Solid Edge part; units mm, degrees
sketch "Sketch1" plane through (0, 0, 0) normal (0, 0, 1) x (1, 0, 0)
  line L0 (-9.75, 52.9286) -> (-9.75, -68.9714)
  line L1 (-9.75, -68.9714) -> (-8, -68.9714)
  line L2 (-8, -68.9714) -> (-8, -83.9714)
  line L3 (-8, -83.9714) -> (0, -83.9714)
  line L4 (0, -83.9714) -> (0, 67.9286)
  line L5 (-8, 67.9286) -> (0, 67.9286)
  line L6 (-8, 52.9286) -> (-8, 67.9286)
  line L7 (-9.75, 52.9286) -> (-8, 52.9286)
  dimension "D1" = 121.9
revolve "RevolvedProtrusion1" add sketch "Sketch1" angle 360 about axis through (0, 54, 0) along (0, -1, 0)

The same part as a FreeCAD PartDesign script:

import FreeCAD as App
import Part
import Sketcher

V = App.Vector


def add_polygon(sketch, points):
    """Adds a closed chain of lines whose ends are joined by coincident constraints."""
    first, n = sketch.GeometryCount, len(points)
    for a, b in zip(points, points[1:] + points[:1]):
        sketch.addGeometry(Part.LineSegment(App.Vector(*a, 0), App.Vector(*b, 0)), False)
    for i in range(n):
        sketch.addConstraint(Sketcher.Constraint("Coincident", first + i, 2, first + (i + 1) % n, 1))

doc = App.newDocument("Part")
params = doc.addObject("Spreadsheet::Sheet", "Params")
for row, (alias, value) in enumerate([
    ("sketch1_width", "8 mm"),
    ("sketch1_height", "15 mm"),
    ("sketch1_height2", "121.9 mm"),
    ("revolution_angle", "360 deg"),
], start=1):
    params.set(f"A{row}", alias)
    params.set(f"B{row}", "=" + value)
    params.setAlias(f"B{row}", alias)

body = doc.addObject("PartDesign::Body", "Body")

# Sketch on XY plane
sketch1 = doc.addObject("Sketcher::SketchObject", "Sketch")
body.addObject(sketch1)
sketch1.AttachmentSupport = (doc.XY_Plane, [""])
sketch1.MapMode = "FlatFace"
add_polygon(sketch1, [(-8, 52.9), (-9.8, 52.9), (-9.8, -69), (-8, -69), (-8, -84), (0, -84), (0, 67.9), (-8, 67.9)])  # lines 0-7
sketch1.addConstraint([
    Sketcher.Constraint("Horizontal", 0),
    Sketcher.Constraint("Vertical", 1),
    Sketcher.Constraint("Horizontal", 2),
    Sketcher.Constraint("Vertical", 3),
    Sketcher.Constraint("Horizontal", 4),
    Sketcher.Constraint("Vertical", 5),
    Sketcher.Constraint("Horizontal", 6),
    Sketcher.Constraint("Vertical", 7),
    Sketcher.Constraint("PointOnObject", 4, 2, -2),
    Sketcher.Constraint("Vertical", 3, 2, 6, 2),
    Sketcher.Constraint("Equal", 3, 7),
    Sketcher.Constraint("DistanceX", 4, 1, 4, 2, 8.0),
    Sketcher.Constraint("DistanceY", 3, 2, 3, 1, 15.0),
    Sketcher.Constraint("DistanceX", 0, 2, -1, 1, 9.75),
    Sketcher.Constraint("DistanceY", 1, 2, 1, 1, 121.9),
    Sketcher.Constraint("DistanceY", -1, 1, 0, 2, 52.9286),
])
sketch1.setExpression("Constraints[19]", "Params.sketch1_width")
sketch1.setExpression("Constraints[20]", "Params.sketch1_height")
sketch1.setExpression("Constraints[22]", "Params.sketch1_height2")
revolution = doc.addObject("PartDesign::Revolution", "Revolution")
body.addObject(revolution)
revolution.Profile = sketch1
revolution.ReferenceAxis = (sketch1, ["V_Axis"])
revolution.setExpression("Angle", "Params.revolution_angle")

doc.recompute()
